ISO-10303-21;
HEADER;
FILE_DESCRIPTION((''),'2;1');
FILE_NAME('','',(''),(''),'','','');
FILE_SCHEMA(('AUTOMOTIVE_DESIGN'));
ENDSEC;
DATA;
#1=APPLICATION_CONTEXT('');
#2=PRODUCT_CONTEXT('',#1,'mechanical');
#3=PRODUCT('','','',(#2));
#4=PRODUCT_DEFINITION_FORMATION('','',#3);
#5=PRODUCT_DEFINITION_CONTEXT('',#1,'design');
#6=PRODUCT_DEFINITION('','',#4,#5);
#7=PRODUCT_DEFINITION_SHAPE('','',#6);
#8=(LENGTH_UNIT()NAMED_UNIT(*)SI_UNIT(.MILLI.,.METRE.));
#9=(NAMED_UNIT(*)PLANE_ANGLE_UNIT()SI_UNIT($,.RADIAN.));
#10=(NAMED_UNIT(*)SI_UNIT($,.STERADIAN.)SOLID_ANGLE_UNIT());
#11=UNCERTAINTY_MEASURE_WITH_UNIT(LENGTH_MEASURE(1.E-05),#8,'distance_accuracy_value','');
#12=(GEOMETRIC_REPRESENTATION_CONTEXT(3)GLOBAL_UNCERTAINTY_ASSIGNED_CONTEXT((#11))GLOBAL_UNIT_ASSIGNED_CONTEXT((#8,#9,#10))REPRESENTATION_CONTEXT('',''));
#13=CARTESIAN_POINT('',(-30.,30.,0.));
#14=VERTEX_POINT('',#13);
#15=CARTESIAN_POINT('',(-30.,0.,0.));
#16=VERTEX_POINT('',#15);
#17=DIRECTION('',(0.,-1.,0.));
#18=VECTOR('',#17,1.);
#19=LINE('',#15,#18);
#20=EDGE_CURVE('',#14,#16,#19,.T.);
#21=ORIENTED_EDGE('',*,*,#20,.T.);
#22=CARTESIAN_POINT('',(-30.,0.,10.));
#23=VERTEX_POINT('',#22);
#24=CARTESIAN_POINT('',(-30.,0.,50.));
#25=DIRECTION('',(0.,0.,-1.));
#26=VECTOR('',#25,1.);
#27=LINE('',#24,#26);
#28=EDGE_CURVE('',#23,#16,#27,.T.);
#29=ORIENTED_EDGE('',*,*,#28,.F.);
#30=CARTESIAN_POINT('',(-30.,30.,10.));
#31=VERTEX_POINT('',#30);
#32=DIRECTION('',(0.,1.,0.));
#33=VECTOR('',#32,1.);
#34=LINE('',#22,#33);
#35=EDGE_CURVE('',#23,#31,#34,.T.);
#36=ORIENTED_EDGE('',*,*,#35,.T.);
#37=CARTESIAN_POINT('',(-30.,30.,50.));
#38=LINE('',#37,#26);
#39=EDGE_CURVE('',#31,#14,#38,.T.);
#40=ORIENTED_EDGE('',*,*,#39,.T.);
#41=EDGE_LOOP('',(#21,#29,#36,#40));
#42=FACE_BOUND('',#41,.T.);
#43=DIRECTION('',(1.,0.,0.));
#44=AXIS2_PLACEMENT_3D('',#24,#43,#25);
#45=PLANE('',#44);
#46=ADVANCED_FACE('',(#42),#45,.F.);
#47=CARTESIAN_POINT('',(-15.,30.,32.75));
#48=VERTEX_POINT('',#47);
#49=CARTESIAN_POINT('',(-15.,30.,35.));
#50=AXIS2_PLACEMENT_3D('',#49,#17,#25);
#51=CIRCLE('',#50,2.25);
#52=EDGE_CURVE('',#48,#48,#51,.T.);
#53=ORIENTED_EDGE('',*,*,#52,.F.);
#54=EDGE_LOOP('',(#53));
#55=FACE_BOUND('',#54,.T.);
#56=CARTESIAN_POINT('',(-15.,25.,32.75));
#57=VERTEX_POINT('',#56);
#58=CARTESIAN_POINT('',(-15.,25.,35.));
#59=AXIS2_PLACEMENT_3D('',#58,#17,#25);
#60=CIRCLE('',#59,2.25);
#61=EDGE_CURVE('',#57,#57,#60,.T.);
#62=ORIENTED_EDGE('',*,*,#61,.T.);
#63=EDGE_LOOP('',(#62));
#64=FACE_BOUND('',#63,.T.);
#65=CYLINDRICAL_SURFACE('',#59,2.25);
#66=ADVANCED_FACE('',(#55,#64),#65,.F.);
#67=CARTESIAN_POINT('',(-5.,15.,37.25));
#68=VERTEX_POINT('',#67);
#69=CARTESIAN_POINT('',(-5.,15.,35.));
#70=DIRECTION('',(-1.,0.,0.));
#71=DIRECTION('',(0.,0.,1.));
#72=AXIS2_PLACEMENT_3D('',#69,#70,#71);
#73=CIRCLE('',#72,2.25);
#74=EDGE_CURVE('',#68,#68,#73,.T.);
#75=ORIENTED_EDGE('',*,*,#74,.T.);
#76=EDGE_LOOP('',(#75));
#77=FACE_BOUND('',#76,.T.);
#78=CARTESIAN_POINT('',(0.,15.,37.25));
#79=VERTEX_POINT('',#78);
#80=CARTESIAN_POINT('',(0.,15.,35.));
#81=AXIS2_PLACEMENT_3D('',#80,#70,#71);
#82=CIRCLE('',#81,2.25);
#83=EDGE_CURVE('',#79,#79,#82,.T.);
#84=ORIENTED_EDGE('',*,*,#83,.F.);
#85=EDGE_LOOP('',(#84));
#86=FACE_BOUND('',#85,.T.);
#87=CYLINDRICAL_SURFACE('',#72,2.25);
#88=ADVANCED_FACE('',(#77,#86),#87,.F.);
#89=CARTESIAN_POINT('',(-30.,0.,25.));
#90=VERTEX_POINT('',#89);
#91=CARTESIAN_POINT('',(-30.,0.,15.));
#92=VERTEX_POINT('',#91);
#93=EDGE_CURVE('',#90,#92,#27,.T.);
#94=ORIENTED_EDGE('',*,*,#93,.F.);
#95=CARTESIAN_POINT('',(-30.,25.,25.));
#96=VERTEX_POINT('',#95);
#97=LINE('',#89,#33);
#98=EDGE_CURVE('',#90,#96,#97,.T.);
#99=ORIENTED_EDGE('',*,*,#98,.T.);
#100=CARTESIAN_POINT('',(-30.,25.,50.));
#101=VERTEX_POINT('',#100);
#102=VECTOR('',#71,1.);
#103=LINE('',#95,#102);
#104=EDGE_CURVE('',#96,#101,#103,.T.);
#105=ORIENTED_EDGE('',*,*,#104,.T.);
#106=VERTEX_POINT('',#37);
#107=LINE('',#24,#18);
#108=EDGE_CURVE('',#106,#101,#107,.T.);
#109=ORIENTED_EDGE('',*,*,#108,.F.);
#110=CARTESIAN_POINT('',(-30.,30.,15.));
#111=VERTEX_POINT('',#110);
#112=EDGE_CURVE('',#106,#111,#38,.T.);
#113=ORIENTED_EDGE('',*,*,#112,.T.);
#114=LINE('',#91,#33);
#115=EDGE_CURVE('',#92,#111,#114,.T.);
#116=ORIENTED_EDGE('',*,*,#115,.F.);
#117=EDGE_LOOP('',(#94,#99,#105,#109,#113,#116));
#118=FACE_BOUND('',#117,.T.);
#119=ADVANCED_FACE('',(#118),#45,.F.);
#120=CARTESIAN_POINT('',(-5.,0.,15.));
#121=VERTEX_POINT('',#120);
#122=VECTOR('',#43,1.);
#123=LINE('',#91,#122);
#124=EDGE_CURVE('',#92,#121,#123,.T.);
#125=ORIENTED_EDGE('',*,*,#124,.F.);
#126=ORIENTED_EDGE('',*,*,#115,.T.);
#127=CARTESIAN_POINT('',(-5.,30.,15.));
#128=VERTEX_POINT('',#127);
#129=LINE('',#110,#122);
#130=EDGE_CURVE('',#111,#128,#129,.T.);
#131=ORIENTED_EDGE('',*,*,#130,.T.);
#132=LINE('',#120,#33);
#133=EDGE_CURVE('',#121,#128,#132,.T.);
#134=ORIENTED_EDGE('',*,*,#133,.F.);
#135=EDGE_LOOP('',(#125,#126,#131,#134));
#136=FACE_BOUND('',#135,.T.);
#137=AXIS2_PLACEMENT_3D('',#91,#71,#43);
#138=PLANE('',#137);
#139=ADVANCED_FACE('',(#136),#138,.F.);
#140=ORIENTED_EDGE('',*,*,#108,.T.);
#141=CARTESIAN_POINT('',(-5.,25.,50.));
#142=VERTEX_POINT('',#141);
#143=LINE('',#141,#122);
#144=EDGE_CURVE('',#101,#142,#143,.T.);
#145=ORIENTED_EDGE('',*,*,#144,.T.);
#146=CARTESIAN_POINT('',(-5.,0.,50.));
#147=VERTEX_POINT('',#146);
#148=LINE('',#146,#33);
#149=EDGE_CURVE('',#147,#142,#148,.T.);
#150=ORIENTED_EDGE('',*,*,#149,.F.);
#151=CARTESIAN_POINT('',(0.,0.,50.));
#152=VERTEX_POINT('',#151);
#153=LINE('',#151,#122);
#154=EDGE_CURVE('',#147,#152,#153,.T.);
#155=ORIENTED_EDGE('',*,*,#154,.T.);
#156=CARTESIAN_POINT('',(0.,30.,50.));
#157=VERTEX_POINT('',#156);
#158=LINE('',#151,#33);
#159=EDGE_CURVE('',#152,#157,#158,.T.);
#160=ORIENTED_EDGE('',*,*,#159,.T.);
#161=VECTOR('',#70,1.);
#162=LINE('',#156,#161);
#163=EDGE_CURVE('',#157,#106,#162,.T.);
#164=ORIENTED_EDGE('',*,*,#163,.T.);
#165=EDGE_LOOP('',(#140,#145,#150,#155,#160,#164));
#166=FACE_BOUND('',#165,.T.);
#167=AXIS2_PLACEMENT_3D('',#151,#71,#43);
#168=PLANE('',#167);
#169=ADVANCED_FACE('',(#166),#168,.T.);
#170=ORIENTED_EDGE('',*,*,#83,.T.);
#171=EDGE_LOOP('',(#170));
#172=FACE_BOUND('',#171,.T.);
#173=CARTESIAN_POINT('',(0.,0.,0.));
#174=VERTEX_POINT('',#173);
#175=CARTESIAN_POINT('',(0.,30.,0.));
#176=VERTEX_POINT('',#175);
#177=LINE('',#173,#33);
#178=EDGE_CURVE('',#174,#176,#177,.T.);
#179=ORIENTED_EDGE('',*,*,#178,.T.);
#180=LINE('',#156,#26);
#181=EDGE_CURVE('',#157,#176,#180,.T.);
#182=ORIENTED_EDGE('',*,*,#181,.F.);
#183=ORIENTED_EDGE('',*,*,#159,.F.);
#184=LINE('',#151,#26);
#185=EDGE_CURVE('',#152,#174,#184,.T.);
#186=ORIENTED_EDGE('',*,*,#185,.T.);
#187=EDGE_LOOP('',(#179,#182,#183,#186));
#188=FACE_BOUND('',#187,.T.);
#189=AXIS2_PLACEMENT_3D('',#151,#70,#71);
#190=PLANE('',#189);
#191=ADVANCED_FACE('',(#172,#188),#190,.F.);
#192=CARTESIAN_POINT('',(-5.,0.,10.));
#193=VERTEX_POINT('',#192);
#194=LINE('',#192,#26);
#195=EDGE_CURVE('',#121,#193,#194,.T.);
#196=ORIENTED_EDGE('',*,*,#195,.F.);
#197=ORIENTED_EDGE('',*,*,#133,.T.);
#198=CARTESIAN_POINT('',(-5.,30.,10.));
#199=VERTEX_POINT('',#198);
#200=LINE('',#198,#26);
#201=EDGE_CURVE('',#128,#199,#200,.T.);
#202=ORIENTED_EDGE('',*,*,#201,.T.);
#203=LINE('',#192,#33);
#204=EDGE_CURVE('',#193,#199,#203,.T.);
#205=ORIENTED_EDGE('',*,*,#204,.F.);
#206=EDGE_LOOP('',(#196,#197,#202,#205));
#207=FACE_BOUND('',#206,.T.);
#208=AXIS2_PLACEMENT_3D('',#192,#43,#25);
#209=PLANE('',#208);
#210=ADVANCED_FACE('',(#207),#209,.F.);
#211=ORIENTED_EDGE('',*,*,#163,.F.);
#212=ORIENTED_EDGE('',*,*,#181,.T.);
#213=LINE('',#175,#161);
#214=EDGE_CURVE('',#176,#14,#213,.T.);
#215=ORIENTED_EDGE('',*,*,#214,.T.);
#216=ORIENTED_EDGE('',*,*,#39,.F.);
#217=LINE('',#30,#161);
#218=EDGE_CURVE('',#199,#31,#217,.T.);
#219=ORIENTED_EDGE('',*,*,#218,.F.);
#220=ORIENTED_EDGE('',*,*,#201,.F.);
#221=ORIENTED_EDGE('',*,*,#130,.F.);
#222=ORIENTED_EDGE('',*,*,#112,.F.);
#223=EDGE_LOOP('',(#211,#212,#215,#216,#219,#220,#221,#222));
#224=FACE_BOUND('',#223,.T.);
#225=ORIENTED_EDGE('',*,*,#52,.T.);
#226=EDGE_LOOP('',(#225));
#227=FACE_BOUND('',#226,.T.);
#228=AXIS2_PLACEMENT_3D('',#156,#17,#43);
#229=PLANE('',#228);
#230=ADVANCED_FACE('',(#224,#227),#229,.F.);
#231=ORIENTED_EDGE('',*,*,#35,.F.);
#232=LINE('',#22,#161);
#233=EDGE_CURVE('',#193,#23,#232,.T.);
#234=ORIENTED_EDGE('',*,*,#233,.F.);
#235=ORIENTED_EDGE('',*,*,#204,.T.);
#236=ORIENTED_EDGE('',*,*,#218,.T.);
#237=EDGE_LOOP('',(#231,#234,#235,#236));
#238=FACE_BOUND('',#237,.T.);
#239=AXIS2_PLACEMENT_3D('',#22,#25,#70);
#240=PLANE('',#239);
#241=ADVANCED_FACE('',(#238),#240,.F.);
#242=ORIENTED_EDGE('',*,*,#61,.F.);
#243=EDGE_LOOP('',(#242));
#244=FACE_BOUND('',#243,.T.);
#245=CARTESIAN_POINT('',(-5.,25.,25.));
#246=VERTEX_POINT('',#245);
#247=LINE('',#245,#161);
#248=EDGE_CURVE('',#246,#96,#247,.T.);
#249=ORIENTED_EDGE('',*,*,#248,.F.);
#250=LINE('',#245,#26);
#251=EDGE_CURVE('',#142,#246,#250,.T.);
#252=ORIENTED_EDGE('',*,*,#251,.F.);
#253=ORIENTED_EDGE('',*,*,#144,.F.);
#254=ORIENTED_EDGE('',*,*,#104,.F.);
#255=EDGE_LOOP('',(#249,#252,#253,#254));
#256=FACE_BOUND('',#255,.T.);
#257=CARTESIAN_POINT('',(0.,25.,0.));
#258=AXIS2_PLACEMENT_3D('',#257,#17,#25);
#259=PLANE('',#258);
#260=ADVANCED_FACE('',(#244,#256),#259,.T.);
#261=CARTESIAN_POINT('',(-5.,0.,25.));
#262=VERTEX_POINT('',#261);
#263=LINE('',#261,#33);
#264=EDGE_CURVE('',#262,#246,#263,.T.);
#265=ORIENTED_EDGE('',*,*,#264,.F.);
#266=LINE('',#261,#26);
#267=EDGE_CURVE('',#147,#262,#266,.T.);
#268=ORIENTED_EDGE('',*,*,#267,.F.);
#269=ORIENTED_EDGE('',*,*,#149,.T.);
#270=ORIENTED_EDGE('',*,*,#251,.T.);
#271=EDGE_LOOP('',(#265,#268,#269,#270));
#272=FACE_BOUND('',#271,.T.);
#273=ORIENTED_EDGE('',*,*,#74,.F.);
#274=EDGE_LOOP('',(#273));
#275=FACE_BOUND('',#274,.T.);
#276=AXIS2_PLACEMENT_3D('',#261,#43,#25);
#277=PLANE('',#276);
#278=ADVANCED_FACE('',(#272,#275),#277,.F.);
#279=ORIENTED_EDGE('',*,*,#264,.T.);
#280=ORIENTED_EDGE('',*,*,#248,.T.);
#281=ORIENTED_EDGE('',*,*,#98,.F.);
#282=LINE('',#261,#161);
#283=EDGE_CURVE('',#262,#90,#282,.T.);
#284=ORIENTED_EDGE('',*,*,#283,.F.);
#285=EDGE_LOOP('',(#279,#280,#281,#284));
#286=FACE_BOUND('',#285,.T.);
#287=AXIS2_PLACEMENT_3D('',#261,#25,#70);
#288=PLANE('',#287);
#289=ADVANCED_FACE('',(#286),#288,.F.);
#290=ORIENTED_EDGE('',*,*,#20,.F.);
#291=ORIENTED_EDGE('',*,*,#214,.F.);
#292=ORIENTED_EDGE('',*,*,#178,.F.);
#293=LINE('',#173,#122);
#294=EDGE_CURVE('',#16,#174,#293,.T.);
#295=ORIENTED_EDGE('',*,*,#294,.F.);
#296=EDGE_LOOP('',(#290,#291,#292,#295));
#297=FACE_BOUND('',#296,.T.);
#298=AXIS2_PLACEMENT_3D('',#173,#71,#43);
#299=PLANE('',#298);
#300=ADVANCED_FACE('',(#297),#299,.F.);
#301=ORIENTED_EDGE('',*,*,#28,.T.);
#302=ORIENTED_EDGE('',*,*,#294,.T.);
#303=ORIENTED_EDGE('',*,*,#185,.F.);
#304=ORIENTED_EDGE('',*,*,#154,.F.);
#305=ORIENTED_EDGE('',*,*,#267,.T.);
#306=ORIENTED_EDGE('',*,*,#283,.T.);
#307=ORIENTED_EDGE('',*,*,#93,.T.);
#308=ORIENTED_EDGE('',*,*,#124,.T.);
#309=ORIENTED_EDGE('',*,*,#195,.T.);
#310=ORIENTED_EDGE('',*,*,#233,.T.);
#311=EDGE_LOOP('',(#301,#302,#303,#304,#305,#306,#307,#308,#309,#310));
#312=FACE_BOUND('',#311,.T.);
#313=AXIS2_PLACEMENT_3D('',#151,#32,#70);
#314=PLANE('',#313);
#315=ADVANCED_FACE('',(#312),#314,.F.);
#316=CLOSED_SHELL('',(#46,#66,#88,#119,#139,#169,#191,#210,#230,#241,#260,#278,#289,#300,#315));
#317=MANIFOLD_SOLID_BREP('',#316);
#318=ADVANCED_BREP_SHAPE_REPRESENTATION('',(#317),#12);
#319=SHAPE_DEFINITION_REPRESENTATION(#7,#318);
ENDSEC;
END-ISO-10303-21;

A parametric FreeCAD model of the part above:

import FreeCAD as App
import Part
import Sketcher
Q = App.Units.Quantity

doc = App.newDocument("Part")
body = doc.addObject("PartDesign::Body", "Body")

# Sketch on XY plane
sketch1 = body.newObject("Sketcher::SketchObject", "Sketch")
sketch1.AttachmentSupport = (doc.getObject("XY_Plane"), [""])
sketch1.MapMode = "FlatFace"
sketch1.addGeometry(Part.LineSegment(App.Vector(-30, 30, 0), App.Vector(-30, 0, 0)), False)
sketch1.addGeometry(Part.LineSegment(App.Vector(-30, 0, 0), App.Vector(0, 0, 0)), False)
sketch1.addGeometry(Part.LineSegment(App.Vector(0, 0, 0), App.Vector(0, 30, 0)), False)
sketch1.addGeometry(Part.LineSegment(App.Vector(0, 30, 0), App.Vector(-30, 30, 0)), False)
sketch1.addConstraint(Sketcher.Constraint("Coincident", 0, 2, 1, 1))
sketch1.addConstraint(Sketcher.Constraint("Coincident", 1, 2, 2, 1))
sketch1.addConstraint(Sketcher.Constraint("Coincident", 2, 2, 3, 1))
sketch1.addConstraint(Sketcher.Constraint("Coincident", 3, 2, 0, 1))
sketch1.addConstraint(Sketcher.Constraint("Vertical", 0))
sketch1.addConstraint(Sketcher.Constraint("Horizontal", 1))
sketch1.addConstraint(Sketcher.Constraint("Vertical", 2))
sketch1.addConstraint(Sketcher.Constraint("Horizontal", 3))
sketch1.addConstraint(Sketcher.Constraint("Coincident", 1, 2, -1, 1))
sketch1.addConstraint(Sketcher.Constraint("Equal", 3, 0))
sketch1.addConstraint(Sketcher.Constraint("DistanceX", 1, 1, 1, 2, Q("30 mm")))
pad1 = body.newObject("PartDesign::Pad", "Pad")
pad1.Profile = sketch1
pad1.Length = 50

# Sketch on XZ plane
sketch2 = body.newObject("Sketcher::SketchObject", "Sketch001")
sketch2.AttachmentSupport = (doc.getObject("XZ_Plane"), [""])
sketch2.MapMode = "FlatFace"
sketch2.AttachmentOffset = App.Placement(App.Vector(0, 0, -30), App.Rotation())
sketch2.addGeometry(Part.LineSegment(App.Vector(-30, 10, 0), App.Vector(-30, 15, 0)), False)
sketch2.addGeometry(Part.LineSegment(App.Vector(-30, 15, 0), App.Vector(-5, 15, 0)), False)
sketch2.addGeometry(Part.LineSegment(App.Vector(-5, 15, 0), App.Vector(-5, 10, 0)), False)
sketch2.addGeometry(Part.LineSegment(App.Vector(-5, 10, 0), App.Vector(-30, 10, 0)), False)
sketch2.addConstraint(Sketcher.Constraint("Coincident", 0, 2, 1, 1))
sketch2.addConstraint(Sketcher.Constraint("Coincident", 1, 2, 2, 1))
sketch2.addConstraint(Sketcher.Constraint("Coincident", 2, 2, 3, 1))
sketch2.addConstraint(Sketcher.Constraint("Coincident", 3, 2, 0, 1))
sketch2.addConstraint(Sketcher.Constraint("Vertical", 0))
sketch2.addConstraint(Sketcher.Constraint("Horizontal", 1))
sketch2.addConstraint(Sketcher.Constraint("Vertical", 2))
sketch2.addConstraint(Sketcher.Constraint("Horizontal", 3))
sketch2.addConstraint(Sketcher.Constraint("DistanceX", 1, 1, 1, 2, Q("25 mm")))
sketch2.addConstraint(Sketcher.Constraint("DistanceY", 0, 1, 0, 2, Q("5 mm")))
sketch2.addConstraint(Sketcher.Constraint("DistanceX", 0, 2, -1, 1, Q("30 mm")))
sketch2.addConstraint(Sketcher.Constraint("DistanceY", -1, 1, 0, 2, Q("15 mm")))
pocket1 = body.newObject("PartDesign::Pocket", "Pocket")
pocket1.Profile = sketch2
pocket1.Type = "ThroughAll"
pocket1.Reversed = True

# Sketch on XZ plane
sketch3 = body.newObject("Sketcher::SketchObject", "Sketch002")
sketch3.AttachmentSupport = (doc.getObject("XZ_Plane"), [""])
sketch3.MapMode = "FlatFace"
sketch3.AttachmentOffset = App.Placement(App.Vector(0, 0, -25), App.Rotation())
sketch3.addGeometry(Part.LineSegment(App.Vector(-30, 25, 0), App.Vector(-30, 50, 0)), False)
sketch3.addGeometry(Part.LineSegment(App.Vector(-30, 50, 0), App.Vector(-5, 50, 0)), False)
sketch3.addGeometry(Part.LineSegment(App.Vector(-5, 50, 0), App.Vector(-5, 25, 0)), False)
sketch3.addGeometry(Part.LineSegment(App.Vector(-5, 25, 0), App.Vector(-30, 25, 0)), False)
sketch3.addConstraint(Sketcher.Constraint("Coincident", 0, 2, 1, 1))
sketch3.addConstraint(Sketcher.Constraint("Coincident", 1, 2, 2, 1))
sketch3.addConstraint(Sketcher.Constraint("Coincident", 2, 2, 3, 1))
sketch3.addConstraint(Sketcher.Constraint("Coincident", 3, 2, 0, 1))
sketch3.addConstraint(Sketcher.Constraint("Vertical", 0))
sketch3.addConstraint(Sketcher.Constraint("Horizontal", 1))
sketch3.addConstraint(Sketcher.Constraint("Vertical", 2))
sketch3.addConstraint(Sketcher.Constraint("Horizontal", 3))
sketch3.addConstraint(Sketcher.Constraint("Equal", 3, 0))
sketch3.addConstraint(Sketcher.Constraint("DistanceX", 1, 1, 1, 2, Q("25 mm")))
sketch3.addConstraint(Sketcher.Constraint("DistanceX", 0, 2, -1, 1, Q("30 mm")))
sketch3.addConstraint(Sketcher.Constraint("DistanceY", -1, 1, 0, 2, Q("50 mm")))
pocket2 = body.newObject("PartDesign::Pocket", "Pocket001")
pocket2.Profile = sketch3
pocket2.Type = "ThroughAll"
pocket2.Reversed = True

# Sketch on YZ plane
sketch4 = body.newObject("Sketcher::SketchObject", "Sketch003")
sketch4.AttachmentSupport = (doc.getObject("YZ_Plane"), [""])
sketch4.MapMode = "FlatFace"
sketch4.AttachmentOffset = App.Placement(App.Vector(0, 0, -5), App.Rotation())
sketch4.addGeometry(Part.Circle(App.Vector(15, 35, 0), App.Vector(0, 0, 1), 2.2), False)
sketch4.addConstraint(Sketcher.Constraint("Diameter", 0, Q("4.5 mm")))
sketch4.addConstraint(Sketcher.Constraint("DistanceX", -1, 1, 0, 3, Q("15 mm")))
sketch4.addConstraint(Sketcher.Constraint("DistanceY", -1, 1, 0, 3, Q("35 mm")))
doc.recompute()
hole = body.newObject("PartDesign::Hole", "Hole")
hole.Profile = sketch4
hole.ThreadType = "None"
hole.Diameter = 4.5
hole.DepthType = "ThroughAll"
hole.Reversed = True

# Sketch on XZ plane
sketch5 = body.newObject("Sketcher::SketchObject", "Sketch004")
sketch5.AttachmentSupport = (doc.getObject("XZ_Plane"), [""])
sketch5.MapMode = "FlatFace"
sketch5.AttachmentOffset = App.Placement(App.Vector(0, 0, -25), App.Rotation())
sketch5.addGeometry(Part.Circle(App.Vector(-15, 35, 0), App.Vector(0, 0, 1), 2.2), False)
sketch5.addConstraint(Sketcher.Constraint("Diameter", 0, Q("4.5 mm")))
sketch5.addConstraint(Sketcher.Constraint("DistanceX", 0, 3, -1, 1, Q("15 mm")))
sketch5.addConstraint(Sketcher.Constraint("DistanceY", -1, 1, 0, 3, Q("35 mm")))
doc.recompute()
hole2 = body.newObject("PartDesign::Hole", "Hole001")
hole2.Profile = sketch5
hole2.ThreadType = "None"
hole2.Diameter = 4.5
hole2.DepthType = "ThroughAll"

doc.recompute()
